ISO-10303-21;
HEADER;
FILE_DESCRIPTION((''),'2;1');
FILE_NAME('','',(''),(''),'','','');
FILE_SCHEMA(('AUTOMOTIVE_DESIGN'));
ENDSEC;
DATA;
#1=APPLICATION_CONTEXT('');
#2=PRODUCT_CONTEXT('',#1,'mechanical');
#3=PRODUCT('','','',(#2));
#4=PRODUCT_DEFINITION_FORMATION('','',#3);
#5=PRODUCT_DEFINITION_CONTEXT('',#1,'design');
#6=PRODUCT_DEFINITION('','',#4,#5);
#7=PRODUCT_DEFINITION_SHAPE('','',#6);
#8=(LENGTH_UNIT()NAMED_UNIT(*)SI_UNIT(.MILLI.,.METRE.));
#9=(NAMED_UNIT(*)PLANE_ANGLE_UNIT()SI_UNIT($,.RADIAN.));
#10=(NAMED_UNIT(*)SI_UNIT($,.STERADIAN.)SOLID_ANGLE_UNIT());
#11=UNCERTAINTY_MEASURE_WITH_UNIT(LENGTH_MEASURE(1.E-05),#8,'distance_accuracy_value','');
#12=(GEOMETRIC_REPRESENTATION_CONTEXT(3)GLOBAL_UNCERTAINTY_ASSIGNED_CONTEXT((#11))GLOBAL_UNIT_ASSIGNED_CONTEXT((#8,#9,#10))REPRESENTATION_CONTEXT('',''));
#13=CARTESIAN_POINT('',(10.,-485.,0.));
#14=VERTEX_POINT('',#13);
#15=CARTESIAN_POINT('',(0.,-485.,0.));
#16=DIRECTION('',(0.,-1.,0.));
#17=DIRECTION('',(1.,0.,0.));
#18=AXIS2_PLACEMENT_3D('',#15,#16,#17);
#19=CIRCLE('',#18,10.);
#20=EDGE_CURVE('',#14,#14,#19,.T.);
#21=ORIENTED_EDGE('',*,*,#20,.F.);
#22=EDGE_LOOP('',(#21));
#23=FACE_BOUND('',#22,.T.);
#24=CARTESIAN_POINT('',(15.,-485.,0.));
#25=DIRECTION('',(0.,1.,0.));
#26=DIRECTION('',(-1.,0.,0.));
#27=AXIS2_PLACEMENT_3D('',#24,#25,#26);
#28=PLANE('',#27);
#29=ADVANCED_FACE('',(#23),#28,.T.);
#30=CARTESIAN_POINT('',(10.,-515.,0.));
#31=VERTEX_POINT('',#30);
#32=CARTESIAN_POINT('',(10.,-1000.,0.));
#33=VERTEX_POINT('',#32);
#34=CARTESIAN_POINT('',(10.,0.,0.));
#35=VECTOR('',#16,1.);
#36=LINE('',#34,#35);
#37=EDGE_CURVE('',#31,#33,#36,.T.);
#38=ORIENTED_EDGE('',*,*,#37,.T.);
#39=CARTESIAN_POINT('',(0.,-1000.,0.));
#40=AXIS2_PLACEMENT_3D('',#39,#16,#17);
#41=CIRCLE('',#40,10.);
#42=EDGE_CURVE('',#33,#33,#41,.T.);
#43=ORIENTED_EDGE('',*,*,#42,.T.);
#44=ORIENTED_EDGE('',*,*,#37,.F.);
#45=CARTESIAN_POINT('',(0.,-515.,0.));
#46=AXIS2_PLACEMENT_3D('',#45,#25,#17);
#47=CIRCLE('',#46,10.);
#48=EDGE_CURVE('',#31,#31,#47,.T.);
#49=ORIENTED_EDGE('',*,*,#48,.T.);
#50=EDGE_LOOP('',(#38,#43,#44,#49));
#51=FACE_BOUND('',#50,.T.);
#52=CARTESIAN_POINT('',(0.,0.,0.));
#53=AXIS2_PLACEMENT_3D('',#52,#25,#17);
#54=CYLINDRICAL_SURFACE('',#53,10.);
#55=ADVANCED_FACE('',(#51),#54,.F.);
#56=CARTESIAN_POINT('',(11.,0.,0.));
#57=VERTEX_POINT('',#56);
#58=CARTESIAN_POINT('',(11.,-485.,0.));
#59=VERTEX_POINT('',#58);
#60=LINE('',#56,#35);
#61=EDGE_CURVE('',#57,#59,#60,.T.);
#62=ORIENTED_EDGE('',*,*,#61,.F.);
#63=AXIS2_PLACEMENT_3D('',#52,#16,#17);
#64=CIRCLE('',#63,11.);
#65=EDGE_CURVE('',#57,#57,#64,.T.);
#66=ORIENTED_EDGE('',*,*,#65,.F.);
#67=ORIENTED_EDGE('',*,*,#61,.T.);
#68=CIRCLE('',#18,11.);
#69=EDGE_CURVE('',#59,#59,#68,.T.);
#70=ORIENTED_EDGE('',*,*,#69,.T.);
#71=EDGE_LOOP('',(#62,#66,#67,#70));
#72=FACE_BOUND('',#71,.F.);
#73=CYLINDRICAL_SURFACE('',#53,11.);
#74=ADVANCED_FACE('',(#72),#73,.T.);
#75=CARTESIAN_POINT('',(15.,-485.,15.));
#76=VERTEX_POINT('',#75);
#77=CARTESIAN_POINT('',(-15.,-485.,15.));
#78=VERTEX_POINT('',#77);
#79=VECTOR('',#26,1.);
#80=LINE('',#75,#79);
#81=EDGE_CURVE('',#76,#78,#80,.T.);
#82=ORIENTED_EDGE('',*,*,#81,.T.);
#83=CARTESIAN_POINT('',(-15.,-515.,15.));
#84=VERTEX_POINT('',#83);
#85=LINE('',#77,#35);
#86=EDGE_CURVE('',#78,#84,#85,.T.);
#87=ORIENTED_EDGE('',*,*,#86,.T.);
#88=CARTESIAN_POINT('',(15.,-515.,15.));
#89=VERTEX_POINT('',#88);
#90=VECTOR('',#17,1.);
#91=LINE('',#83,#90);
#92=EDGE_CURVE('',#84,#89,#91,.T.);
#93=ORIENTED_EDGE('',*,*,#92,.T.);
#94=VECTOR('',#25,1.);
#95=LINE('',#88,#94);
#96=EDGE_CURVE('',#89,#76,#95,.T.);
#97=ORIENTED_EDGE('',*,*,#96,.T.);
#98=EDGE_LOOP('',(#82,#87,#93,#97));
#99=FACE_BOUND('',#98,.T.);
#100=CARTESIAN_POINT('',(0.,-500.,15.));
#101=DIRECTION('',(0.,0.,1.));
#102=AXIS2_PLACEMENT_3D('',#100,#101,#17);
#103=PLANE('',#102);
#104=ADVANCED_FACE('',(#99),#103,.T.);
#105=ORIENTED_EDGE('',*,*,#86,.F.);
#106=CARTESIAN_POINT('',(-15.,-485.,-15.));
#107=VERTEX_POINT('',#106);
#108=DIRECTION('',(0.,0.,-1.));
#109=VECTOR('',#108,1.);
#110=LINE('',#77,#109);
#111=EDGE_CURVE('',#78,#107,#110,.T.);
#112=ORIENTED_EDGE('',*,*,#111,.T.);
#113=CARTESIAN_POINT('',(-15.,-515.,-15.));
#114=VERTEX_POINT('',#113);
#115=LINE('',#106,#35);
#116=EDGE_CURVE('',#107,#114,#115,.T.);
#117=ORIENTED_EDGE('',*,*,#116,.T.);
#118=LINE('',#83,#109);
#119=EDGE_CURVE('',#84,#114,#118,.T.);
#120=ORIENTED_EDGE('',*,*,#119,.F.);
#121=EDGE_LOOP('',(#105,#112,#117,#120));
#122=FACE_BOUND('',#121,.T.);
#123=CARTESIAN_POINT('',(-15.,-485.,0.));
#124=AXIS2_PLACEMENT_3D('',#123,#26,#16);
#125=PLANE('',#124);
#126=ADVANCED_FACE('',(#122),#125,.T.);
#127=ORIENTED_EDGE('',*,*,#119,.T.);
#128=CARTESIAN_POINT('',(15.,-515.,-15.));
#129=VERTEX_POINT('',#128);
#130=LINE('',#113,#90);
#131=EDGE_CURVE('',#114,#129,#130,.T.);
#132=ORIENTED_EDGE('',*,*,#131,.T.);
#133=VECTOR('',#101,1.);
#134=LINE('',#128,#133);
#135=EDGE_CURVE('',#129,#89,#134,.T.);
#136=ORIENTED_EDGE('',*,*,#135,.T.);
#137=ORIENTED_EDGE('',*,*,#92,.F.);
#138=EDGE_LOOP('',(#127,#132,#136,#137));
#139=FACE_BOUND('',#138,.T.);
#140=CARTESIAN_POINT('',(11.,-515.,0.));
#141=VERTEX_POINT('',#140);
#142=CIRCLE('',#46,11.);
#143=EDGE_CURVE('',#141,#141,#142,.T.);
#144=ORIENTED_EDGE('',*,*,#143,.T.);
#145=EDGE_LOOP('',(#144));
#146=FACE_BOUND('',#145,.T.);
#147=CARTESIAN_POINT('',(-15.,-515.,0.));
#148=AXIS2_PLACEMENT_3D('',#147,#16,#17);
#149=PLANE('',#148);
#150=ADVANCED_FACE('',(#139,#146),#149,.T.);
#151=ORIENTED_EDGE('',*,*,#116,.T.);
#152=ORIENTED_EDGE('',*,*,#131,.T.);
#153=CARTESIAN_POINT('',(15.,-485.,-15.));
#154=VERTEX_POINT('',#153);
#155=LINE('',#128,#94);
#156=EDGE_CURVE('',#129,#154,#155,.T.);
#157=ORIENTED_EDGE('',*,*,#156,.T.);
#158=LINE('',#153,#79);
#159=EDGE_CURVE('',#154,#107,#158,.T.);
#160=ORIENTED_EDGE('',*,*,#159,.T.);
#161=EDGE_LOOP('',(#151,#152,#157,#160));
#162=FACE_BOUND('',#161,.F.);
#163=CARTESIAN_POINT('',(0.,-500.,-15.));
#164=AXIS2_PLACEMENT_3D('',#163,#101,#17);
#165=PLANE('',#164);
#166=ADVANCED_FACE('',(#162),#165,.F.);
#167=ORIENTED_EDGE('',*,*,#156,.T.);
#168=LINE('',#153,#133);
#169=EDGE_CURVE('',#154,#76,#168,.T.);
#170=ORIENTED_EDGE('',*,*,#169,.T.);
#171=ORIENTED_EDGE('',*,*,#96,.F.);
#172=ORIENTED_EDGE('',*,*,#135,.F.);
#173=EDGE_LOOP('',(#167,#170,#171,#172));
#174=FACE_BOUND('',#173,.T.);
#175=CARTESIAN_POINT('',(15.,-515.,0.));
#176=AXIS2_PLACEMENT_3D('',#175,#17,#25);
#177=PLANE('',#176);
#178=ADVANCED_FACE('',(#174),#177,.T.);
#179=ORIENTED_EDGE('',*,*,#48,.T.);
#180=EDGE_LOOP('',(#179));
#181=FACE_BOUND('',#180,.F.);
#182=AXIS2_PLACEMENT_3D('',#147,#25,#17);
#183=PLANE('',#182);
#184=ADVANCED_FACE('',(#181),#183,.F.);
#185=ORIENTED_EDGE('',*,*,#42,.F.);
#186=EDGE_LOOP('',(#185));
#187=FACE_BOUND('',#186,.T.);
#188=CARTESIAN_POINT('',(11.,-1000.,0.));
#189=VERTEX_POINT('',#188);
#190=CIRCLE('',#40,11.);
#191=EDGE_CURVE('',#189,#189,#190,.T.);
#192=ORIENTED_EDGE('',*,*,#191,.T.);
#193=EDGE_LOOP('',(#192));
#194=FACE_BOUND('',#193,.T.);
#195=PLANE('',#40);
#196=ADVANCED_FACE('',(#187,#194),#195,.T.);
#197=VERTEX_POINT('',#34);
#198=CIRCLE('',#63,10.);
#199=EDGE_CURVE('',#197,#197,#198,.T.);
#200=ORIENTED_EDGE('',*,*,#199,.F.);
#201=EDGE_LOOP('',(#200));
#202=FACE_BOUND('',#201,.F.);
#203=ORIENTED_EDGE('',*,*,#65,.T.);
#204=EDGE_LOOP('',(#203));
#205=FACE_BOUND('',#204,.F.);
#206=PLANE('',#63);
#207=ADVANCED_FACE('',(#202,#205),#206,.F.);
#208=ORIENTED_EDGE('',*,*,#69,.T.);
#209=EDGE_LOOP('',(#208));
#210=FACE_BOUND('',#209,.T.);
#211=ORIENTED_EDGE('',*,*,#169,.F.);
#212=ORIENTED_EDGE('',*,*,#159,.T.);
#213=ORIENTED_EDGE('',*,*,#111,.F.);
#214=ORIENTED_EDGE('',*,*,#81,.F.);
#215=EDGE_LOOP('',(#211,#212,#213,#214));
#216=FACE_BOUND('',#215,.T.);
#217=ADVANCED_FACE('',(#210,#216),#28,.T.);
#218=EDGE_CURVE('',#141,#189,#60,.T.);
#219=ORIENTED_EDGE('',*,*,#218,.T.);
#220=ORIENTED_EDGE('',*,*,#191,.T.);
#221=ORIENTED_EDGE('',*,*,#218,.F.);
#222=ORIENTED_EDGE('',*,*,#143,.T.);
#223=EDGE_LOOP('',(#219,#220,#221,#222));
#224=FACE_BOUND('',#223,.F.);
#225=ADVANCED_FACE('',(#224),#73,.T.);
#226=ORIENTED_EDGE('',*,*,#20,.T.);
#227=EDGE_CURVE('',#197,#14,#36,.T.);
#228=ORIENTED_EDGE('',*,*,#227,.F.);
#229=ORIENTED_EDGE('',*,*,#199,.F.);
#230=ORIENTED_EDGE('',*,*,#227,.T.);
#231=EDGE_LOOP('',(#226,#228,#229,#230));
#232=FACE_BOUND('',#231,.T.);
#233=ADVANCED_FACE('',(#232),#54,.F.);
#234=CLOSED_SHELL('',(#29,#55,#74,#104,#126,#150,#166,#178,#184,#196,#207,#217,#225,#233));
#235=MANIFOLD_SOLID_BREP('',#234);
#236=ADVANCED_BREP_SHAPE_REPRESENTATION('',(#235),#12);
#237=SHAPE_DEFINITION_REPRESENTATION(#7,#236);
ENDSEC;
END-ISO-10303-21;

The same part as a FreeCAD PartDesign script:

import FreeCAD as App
import Part
import Sketcher
Q = App.Units.Quantity

doc = App.newDocument("Part")
body = doc.addObject("PartDesign::Body", "Body")

# Sketch on XZ plane
sketch1 = body.newObject("Sketcher::SketchObject", "Sketch")
sketch1.AttachmentSupport = (doc.getObject("XZ_Plane"), [""])
sketch1.MapMode = "FlatFace"
sketch1.addGeometry(Part.Circle(App.Vector(0, 0, 0), App.Vector(0, 0, 1), 11), False)
sketch1.addGeometry(Part.Circle(App.Vector(0, 0, 0), App.Vector(0, 0, 1), 10), False)
sketch1.addConstraint(Sketcher.Constraint("Coincident", 0, 3, -1, 1))
sketch1.addConstraint(Sketcher.Constraint("Coincident", 1, 3, -1, 1))
sketch1.addConstraint(Sketcher.Constraint("Diameter", 0, Q("22 mm")))
sketch1.addConstraint(Sketcher.Constraint("Diameter", 1, Q("20 mm")))
pad1 = body.newObject("PartDesign::Pad", "Pad")
pad1.Profile = sketch1
pad1.Length = 1000

# Sketch on XY plane
sketch2 = body.newObject("Sketcher::SketchObject", "Sketch001")
sketch2.AttachmentSupport = (doc.getObject("XY_Plane"), [""])
sketch2.MapMode = "FlatFace"
sketch2.addGeometry(Part.LineSegment(App.Vector(-15, -515, 0), App.Vector(15, -515, 0)), False)
sketch2.addGeometry(Part.LineSegment(App.Vector(15, -515, 0), App.Vector(15, -485, 0)), False)
sketch2.addGeometry(Part.LineSegment(App.Vector(15, -485, 0), App.Vector(-15, -485, 0)), False)
sketch2.addGeometry(Part.LineSegment(App.Vector(-15, -485, 0), App.Vector(-15, -515, 0)), False)
sketch2.addConstraint(Sketcher.Constraint("Coincident", 0, 2, 1, 1))
sketch2.addConstraint(Sketcher.Constraint("Coincident", 1, 2, 2, 1))
sketch2.addConstraint(Sketcher.Constraint("Coincident", 2, 2, 3, 1))
sketch2.addConstraint(Sketcher.Constraint("Coincident", 3, 2, 0, 1))
sketch2.addConstraint(Sketcher.Constraint("Horizontal", 0))
sketch2.addConstraint(Sketcher.Constraint("Vertical", 1))
sketch2.addConstraint(Sketcher.Constraint("Horizontal", 2))
sketch2.addConstraint(Sketcher.Constraint("Vertical", 3))
sketch2.addConstraint(Sketcher.Constraint("Equal", 2, 1))
sketch2.addConstraint(Sketcher.Constraint("DistanceX", 0, 1, 0, 2, Q("30 mm")))
sketch2.addConstraint(Sketcher.Constraint("DistanceX", -1, 1, 0, 2, Q("15 mm")))
sketch2.addConstraint(Sketcher.Constraint("DistanceY", 0, 2, -1, 1, Q("515 mm")))
pad2 = body.newObject("PartDesign::Pad", "Pad001")
pad2.Profile = sketch2
pad2.Type = "TwoLengths"
pad2.Length = 15
pad2.Length2 = 15

doc.recompute()
